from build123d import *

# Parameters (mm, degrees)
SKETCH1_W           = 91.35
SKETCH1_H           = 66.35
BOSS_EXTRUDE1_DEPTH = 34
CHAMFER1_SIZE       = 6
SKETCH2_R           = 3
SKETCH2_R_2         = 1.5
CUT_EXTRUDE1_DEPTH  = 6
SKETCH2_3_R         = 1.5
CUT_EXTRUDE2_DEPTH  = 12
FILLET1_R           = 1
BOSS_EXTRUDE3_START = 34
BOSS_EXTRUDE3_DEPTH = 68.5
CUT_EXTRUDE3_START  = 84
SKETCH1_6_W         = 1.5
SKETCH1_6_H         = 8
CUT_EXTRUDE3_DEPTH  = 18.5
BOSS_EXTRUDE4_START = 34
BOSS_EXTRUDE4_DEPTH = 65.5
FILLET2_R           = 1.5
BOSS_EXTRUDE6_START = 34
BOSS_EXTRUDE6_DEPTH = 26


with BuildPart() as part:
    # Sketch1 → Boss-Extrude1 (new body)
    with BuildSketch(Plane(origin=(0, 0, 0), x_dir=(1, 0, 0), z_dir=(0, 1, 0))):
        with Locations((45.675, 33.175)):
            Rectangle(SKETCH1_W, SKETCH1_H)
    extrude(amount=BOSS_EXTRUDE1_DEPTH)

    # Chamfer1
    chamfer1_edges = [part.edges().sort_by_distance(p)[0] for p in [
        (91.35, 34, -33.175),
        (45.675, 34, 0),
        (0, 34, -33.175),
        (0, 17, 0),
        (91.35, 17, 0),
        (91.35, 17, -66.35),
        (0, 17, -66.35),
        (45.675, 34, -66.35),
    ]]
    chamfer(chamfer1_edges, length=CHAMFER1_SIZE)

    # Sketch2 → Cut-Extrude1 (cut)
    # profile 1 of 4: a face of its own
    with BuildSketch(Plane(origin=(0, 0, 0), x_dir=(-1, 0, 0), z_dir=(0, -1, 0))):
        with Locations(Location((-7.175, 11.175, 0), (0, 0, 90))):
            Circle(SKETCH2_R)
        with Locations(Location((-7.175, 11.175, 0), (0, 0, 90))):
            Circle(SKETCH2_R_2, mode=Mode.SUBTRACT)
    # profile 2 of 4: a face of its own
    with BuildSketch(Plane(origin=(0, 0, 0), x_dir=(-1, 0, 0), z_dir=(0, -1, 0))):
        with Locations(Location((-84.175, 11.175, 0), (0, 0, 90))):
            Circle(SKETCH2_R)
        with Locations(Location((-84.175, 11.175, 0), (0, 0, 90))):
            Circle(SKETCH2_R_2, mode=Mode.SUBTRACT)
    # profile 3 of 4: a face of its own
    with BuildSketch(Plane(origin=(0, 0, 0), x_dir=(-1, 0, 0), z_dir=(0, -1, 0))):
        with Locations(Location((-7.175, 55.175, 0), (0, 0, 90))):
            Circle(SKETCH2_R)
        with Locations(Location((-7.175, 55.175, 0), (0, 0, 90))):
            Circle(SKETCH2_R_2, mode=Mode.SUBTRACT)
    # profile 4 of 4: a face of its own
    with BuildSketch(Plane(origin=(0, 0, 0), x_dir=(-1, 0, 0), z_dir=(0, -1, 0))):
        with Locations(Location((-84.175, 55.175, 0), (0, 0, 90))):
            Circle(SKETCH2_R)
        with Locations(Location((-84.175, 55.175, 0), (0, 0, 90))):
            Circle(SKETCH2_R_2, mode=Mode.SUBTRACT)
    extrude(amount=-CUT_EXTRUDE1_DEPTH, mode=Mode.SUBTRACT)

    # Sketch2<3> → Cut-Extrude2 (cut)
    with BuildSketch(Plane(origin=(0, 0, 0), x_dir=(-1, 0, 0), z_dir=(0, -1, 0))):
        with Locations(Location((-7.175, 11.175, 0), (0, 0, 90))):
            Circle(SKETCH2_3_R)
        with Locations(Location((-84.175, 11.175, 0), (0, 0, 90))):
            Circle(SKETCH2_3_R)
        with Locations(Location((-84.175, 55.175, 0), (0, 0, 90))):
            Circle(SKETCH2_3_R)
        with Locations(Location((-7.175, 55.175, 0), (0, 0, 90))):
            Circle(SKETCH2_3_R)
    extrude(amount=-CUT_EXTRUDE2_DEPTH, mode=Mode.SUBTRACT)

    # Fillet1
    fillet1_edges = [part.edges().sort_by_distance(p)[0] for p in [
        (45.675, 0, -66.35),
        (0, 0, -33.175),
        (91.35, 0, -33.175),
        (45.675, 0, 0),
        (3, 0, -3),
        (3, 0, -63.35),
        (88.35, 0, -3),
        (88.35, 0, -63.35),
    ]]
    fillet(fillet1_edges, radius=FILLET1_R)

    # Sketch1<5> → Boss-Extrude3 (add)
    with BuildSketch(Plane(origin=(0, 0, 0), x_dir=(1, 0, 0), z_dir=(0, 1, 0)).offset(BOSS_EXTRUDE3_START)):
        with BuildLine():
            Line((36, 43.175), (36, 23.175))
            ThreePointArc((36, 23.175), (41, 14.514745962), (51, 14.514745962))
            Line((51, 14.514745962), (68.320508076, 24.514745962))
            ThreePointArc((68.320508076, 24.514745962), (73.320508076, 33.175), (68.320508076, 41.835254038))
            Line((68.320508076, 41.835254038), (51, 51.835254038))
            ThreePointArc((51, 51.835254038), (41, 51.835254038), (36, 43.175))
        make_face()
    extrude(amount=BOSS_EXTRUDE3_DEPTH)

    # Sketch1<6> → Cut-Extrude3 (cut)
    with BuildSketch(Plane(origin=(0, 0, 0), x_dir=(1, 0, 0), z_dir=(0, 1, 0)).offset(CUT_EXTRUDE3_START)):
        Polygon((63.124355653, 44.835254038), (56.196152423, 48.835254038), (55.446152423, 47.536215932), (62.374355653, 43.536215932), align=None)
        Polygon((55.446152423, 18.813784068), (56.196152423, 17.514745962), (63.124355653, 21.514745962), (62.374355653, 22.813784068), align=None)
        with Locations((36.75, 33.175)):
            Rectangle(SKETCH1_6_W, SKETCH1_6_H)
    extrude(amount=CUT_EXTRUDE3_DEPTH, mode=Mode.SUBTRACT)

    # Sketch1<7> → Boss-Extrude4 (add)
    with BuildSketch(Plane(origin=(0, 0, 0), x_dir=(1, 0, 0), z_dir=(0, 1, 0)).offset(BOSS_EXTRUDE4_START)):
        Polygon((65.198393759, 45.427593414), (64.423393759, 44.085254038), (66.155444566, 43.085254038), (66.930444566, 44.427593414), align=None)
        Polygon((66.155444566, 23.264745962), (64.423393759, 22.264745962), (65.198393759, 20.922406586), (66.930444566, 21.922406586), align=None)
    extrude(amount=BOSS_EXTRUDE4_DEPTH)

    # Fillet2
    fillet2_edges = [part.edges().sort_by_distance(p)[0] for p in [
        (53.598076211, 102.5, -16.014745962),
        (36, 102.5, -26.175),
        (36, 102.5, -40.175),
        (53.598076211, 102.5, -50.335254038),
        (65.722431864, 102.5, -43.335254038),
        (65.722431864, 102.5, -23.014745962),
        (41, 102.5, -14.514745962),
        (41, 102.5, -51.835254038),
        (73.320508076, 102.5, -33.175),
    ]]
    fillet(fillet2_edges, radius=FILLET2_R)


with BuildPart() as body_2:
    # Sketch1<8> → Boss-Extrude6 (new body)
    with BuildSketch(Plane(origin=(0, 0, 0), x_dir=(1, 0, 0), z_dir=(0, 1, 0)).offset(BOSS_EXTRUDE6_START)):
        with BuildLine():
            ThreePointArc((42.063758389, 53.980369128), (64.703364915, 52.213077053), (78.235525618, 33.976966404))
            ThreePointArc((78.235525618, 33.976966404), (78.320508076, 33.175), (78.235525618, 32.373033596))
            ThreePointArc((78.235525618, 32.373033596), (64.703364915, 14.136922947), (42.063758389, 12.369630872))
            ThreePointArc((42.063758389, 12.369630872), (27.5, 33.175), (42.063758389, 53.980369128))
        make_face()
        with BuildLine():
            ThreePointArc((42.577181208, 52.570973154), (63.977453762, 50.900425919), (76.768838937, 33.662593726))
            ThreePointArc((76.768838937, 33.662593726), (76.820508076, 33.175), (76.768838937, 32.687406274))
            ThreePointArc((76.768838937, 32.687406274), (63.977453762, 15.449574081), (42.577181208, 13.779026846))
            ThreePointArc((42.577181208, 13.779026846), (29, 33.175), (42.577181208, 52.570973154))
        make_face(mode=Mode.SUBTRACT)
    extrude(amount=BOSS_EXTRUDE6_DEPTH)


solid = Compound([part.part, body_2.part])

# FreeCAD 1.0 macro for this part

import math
import FreeCAD as App
import Part
import Sketcher
Q = App.Units.Quantity


def edges_at(feature, points):
    """Names of the edges that pass closest to the given points."""
    edges = feature.Shape.Edges
    near = lambda p: min(range(len(edges)), key=lambda i: edges[i].distToShape(Part.Vertex(*p))[0])
    return sorted({f"Edge{near(p) + 1}" for p in points})

doc = App.newDocument("Part")
body = doc.addObject("PartDesign::Body", "Body")

# Sketch on XZ plane
sketch1 = body.newObject("Sketcher::SketchObject", "Sketch")
sketch1.AttachmentSupport = (doc.getObject("XZ_Plane"), [""])
sketch1.MapMode = "FlatFace"
sketch1.addGeometry([
    Part.LineSegment(App.Vector(0, -66, 0), App.Vector(0, 0, 0)),
    Part.LineSegment(App.Vector(0, 0, 0), App.Vector(91, 0, 0)),
    Part.LineSegment(App.Vector(91, 0, 0), App.Vector(91, -66, 0)),
    Part.LineSegment(App.Vector(91, -66, 0), App.Vector(0, -66, 0)),
], False)
sketch1.addConstraint([
    Sketcher.Constraint("Coincident", 0, 2, 1, 1),
    Sketcher.Constraint("Coincident", 1, 2, 2, 1),
    Sketcher.Constraint("Coincident", 2, 2, 3, 1),
    Sketcher.Constraint("Coincident", 3, 2, 0, 1),
    Sketcher.Constraint("Vertical", 0),
    Sketcher.Constraint("Horizontal", 1),
    Sketcher.Constraint("Vertical", 2),
    Sketcher.Constraint("Horizontal", 3),
    Sketcher.Constraint("Coincident", 0, 2, -1, 1),
    Sketcher.Constraint("DistanceX", 1, 1, 1, 2, 91.35),
    Sketcher.Constraint("DistanceY", 0, 1, 0, 2, 66.35),
])
pad1 = body.newObject("PartDesign::Pad", "Pad")
pad1.Profile = sketch1
pad1.Length = 34
pad1.Reversed = True
doc.recompute()

chamfer = body.newObject("PartDesign::Chamfer", "Chamfer")
chamfer.Base = (pad1, edges_at(pad1, [
    (91.35, 34, -33.175),
    (45.675, 34, 0),
    (0, 34, -33.175),
    (0, 17, 0),
    (91.35, 17, 0),
    (91.35, 17, -66.35),
    (0, 17, -66.35),
    (45.675, 34, -66.35),
]))
chamfer.Size = 6

# Sketch on XZ plane
sketch2 = body.newObject("Sketcher::SketchObject", "Sketch001")
sketch2.AttachmentSupport = (doc.getObject("XZ_Plane"), [""])
sketch2.MapMode = "FlatFace"
sketch2.addGeometry([
    Part.Circle(App.Vector(7.2, -11.2, 0), App.Vector(0, 0, 1), 3),  # 0
    Part.Circle(App.Vector(7.2, -11.2, 0), App.Vector(0, 0, 1), 1.5),  # 1
    Part.Circle(App.Vector(84.2, -11.2, 0), App.Vector(0, 0, 1), 3),  # 2
    Part.Circle(App.Vector(84.2, -11.2, 0), App.Vector(0, 0, 1), 1.5),  # 3
    Part.Circle(App.Vector(7.2, -55.2, 0), App.Vector(0, 0, 1), 3),  # 4
    Part.Circle(App.Vector(7.2, -55.2, 0), App.Vector(0, 0, 1), 1.5),  # 5
    Part.Circle(App.Vector(84.2, -55.2, 0), App.Vector(0, 0, 1), 3),  # 6
    Part.Circle(App.Vector(84.2, -55.2, 0), App.Vector(0, 0, 1), 1.5),  # 7
], False)
sketch2.addConstraint([
    Sketcher.Constraint("Coincident", 1, 3, 0, 3),
    Sketcher.Constraint("Coincident", 3, 3, 2, 3),
    Sketcher.Constraint("Coincident", 5, 3, 4, 3),
    Sketcher.Constraint("Coincident", 7, 3, 6, 3),
    Sketcher.Constraint("Equal", 0, 2),
    Sketcher.Constraint("Equal", 1, 3),
    Sketcher.Constraint("Equal", 2, 4),
    Sketcher.Constraint("Equal", 3, 5),
    Sketcher.Constraint("Equal", 4, 6),
    Sketcher.Constraint("Equal", 5, 7),
    Sketcher.Constraint("Horizontal", 1, 3, 2, 3),
    Sketcher.Constraint("Horizontal", 5, 3, 6, 3),
    Sketcher.Constraint("Vertical", 1, 3, 4, 3),
    Sketcher.Constraint("Vertical", 3, 3, 6, 3),
    Sketcher.Constraint("Diameter", 0, 6.0),
    Sketcher.Constraint("Diameter", 1, 3.0),
    Sketcher.Constraint("DistanceX", 0, 3, 2, 3, 77.0),
    Sketcher.Constraint("DistanceY", 4, 3, 0, 3, 44.0),
    Sketcher.Constraint("DistanceX", -1, 1, 0, 3, 7.175),
    Sketcher.Constraint("DistanceY", 0, 3, -1, 1, 11.175),
])
pocket1 = body.newObject("PartDesign::Pocket", "Pocket")
pocket1.Profile = sketch2
pocket1.Length = 6

# Sketch on XZ plane
sketch3 = body.newObject("Sketcher::SketchObject", "Sketch002")
sketch3.AttachmentSupport = (doc.getObject("XZ_Plane"), [""])
sketch3.MapMode = "FlatFace"
sketch3.addGeometry([
    Part.Circle(App.Vector(7.2, -11.2, 0), App.Vector(0, 0, 1), 1.5),
    Part.Circle(App.Vector(84.2, -11.2, 0), App.Vector(0, 0, 1), 1.5),
    Part.Circle(App.Vector(84.2, -55.2, 0), App.Vector(0, 0, 1), 1.5),
    Part.Circle(App.Vector(7.2, -55.2, 0), App.Vector(0, 0, 1), 1.5),
], False)
sketch3.addConstraint([
    Sketcher.Constraint("Equal", 0, 1),
    Sketcher.Constraint("Equal", 1, 2),
    Sketcher.Constraint("Equal", 2, 3),
    Sketcher.Constraint("Horizontal", 0, 3, 1, 3),
    Sketcher.Constraint("Horizontal", 2, 3, 3, 3),
    Sketcher.Constraint("Vertical", 1, 3, 2, 3),
    Sketcher.Constraint("Vertical", 0, 3, 3, 3),
    Sketcher.Constraint("Diameter", 0, 3.0),
    Sketcher.Constraint("DistanceX", 0, 3, 1, 3, 77.0),
    Sketcher.Constraint("DistanceY", 2, 3, 1, 3, 44.0),
    Sketcher.Constraint("DistanceX", -1, 1, 0, 3, 7.175),
    Sketcher.Constraint("DistanceY", 0, 3, -1, 1, 11.175),
])
pocket2 = body.newObject("PartDesign::Pocket", "Pocket001")
pocket2.Profile = sketch3
pocket2.Length = 12
doc.recompute()

fillet = body.newObject("PartDesign::Fillet", "Fillet")
fillet.Base = (pocket2, edges_at(pocket2, [
    (45.675, 0, -66.35),
    (0, 0, -33.175),
    (91.35, 0, -33.175),
    (45.675, 0, 0),
    (3, 0, -3),
    (3, 0, -63.35),
    (88.35, 0, -3),
    (88.35, 0, -63.35),
]))
fillet.Radius = 1

# Sketch on XZ plane
sketch4 = body.newObject("Sketcher::SketchObject", "Sketch003")
sketch4.AttachmentSupport = (doc.getObject("XZ_Plane"), [""])
sketch4.MapMode = "FlatFace"
sketch4.AttachmentOffset = App.Placement(App.Vector(0, 0, -34), App.Rotation())
sketch4.addGeometry([
    Part.LineSegment(App.Vector(36, -43, 0), App.Vector(36, -23, 0)),  # 0
    Part.ArcOfCircle(Part.Circle(App.Vector(46, -23, 0), App.Vector(0, 0, 1), 10), math.radians(60), math.radians(180)),  # 1
    Part.LineSegment(App.Vector(51, -15, 0), App.Vector(68, -25, 0)),  # 2
    Part.ArcOfCircle(Part.Circle(App.Vector(63, -33, 0), App.Vector(0, 0, 1), 10), math.radians(-60), math.radians(60)),  # 3
    Part.LineSegment(App.Vector(68, -42, 0), App.Vector(51, -52, 0)),  # 4
    Part.ArcOfCircle(Part.Circle(App.Vector(46, -43, 0), App.Vector(0, 0, 1), 10), math.radians(180), math.radians(300)),  # 5
], False)
sketch4.addConstraint([
    Sketcher.Constraint("Tangent", 0, 2, 1, 2),
    Sketcher.Constraint("Tangent", 1, 1, 2, 1),
    Sketcher.Constraint("Tangent", 2, 2, 3, 2),
    Sketcher.Constraint("Tangent", 3, 1, 4, 1),
    Sketcher.Constraint("Tangent", 4, 2, 5, 2),
    Sketcher.Constraint("Tangent", 5, 1, 0, 1),
    Sketcher.Constraint("Vertical", 0),
    Sketcher.Constraint("Equal", 1, 3),
    Sketcher.Constraint("Equal", 3, 5),
    Sketcher.Constraint("Vertical", 2, 2, 3, 1),
    Sketcher.Constraint("Radius", 1, 10.0),
    Sketcher.Constraint("DistanceY", 0, 1, 0, 2, 20.0),
    Sketcher.Constraint("Angle", 2, Q("-30 deg")),
    Sketcher.Constraint("DistanceX", -1, 1, 1, 3, 46.0),
    Sketcher.Constraint("DistanceY", 1, 3, -1, 1, 23.175),
])
pad2 = body.newObject("PartDesign::Pad", "Pad001")
pad2.Profile = sketch4
pad2.Length = 68.5
pad2.Reversed = True

# Sketch on XZ plane
sketch5 = body.newObject("Sketcher::SketchObject", "Sketch004")
sketch5.AttachmentSupport = (doc.getObject("XZ_Plane"), [""])
sketch5.MapMode = "FlatFace"
sketch5.AttachmentOffset = App.Placement(App.Vector(0, 0, -84), App.Rotation())
sketch5.addGeometry([
    Part.LineSegment(App.Vector(63.1, -44.8, 0), App.Vector(56.2, -48.8, 0)),  # 0
    Part.LineSegment(App.Vector(56.2, -48.8, 0), App.Vector(55.4, -47.5, 0)),  # 1
    Part.LineSegment(App.Vector(55.4, -47.5, 0), App.Vector(62.4, -43.5, 0)),  # 2
    Part.LineSegment(App.Vector(62.4, -43.5, 0), App.Vector(63.1, -44.8, 0)),  # 3
    Part.LineSegment(App.Vector(55.4, -18.8, 0), App.Vector(56.2, -17.5, 0)),  # 4
    Part.LineSegment(App.Vector(56.2, -17.5, 0), App.Vector(63.1, -21.5, 0)),  # 5
    Part.LineSegment(App.Vector(63.1, -21.5, 0), App.Vector(62.4, -22.8, 0)),  # 6
    Part.LineSegment(App.Vector(62.4, -22.8, 0), App.Vector(55.4, -18.8, 0)),  # 7
    Part.LineSegment(App.Vector(36, -37.2, 0), App.Vector(36, -29.2, 0)),  # 8
    Part.LineSegment(App.Vector(36, -29.2, 0), App.Vector(37.5, -29.2, 0)),  # 9
    Part.LineSegment(App.Vector(37.5, -29.2, 0), App.Vector(37.5, -37.2, 0)),  # 10
    Part.LineSegment(App.Vector(37.5, -37.2, 0), App.Vector(36, -37.2, 0)),  # 11
], False)
sketch5.addConstraint([
    Sketcher.Constraint("Coincident", 0, 2, 1, 1),
    Sketcher.Constraint("Coincident", 1, 2, 2, 1),
    Sketcher.Constraint("Coincident", 2, 2, 3, 1),
    Sketcher.Constraint("Coincident", 3, 2, 0, 1),
    Sketcher.Constraint("Coincident", 4, 2, 5, 1),
    Sketcher.Constraint("Coincident", 5, 2, 6, 1),
    Sketcher.Constraint("Coincident", 6, 2, 7, 1),
    Sketcher.Constraint("Coincident", 7, 2, 4, 1),
    Sketcher.Constraint("Coincident", 8, 2, 9, 1),
    Sketcher.Constraint("Coincident", 9, 2, 10, 1),
    Sketcher.Constraint("Coincident", 10, 2, 11, 1),
    Sketcher.Constraint("Coincident", 11, 2, 8, 1),
    Sketcher.Constraint("Vertical", 8),
    Sketcher.Constraint("Horizontal", 9),
    Sketcher.Constraint("Vertical", 10),
    Sketcher.Constraint("Horizontal", 11),
    Sketcher.Constraint("Perpendicular", 0, 1),
    Sketcher.Constraint("Perpendicular", 1, 2),
    Sketcher.Constraint("Perpendicular", 2, 3),
    Sketcher.Constraint("Perpendicular", 4, 5),
    Sketcher.Constraint("Perpendicular", 5, 6),
    Sketcher.Constraint("Perpendicular", 6, 7),
    Sketcher.Constraint("Vertical", 0, 2, 4, 2),
    Sketcher.Constraint("Vertical", 3, 2, 5, 2),
    Sketcher.Constraint("Vertical", 2, 2, 6, 2),
    Sketcher.Constraint("Equal", 3, 4),
    Sketcher.Constraint("DistanceY", 8, 1, 8, 2, 8.0),
    Sketcher.Constraint("Angle", 0, Q("-150 deg")),
    Sketcher.Constraint("Distance", 0, 8.0),
    Sketcher.Constraint("DistanceX", 9, 1, 9, 2, 1.5),
    Sketcher.Constraint("DistanceX", -1, 1, 8, 2, 36.0),
    Sketcher.Constraint("Distance", 1, 1.5),
    Sketcher.Constraint("DistanceY", 8, 2, -1, 1, 29.175),
    Sketcher.Constraint("DistanceY", 2, 2, 4, 2, 26.02147),
    Sketcher.Constraint("DistanceX", -1, 1, 0, 2, 56.196152),
    Sketcher.Constraint("DistanceY", 0, 2, -1, 1, 48.835254),
])
pocket3 = body.newObject("PartDesign::Pocket", "Pocket002")
pocket3.Profile = sketch5
pocket3.Length = 18.5

# Sketch on XZ plane
sketch6 = body.newObject("Sketcher::SketchObject", "Sketch005")
sketch6.AttachmentSupport = (doc.getObject("XZ_Plane"), [""])
sketch6.MapMode = "FlatFace"
sketch6.AttachmentOffset = App.Placement(App.Vector(0, 0, -34), App.Rotation())
sketch6.addGeometry([
    Part.LineSegment(App.Vector(65.2, -45.4, 0), App.Vector(64.4, -44.1, 0)),  # 0
    Part.LineSegment(App.Vector(64.4, -44.1, 0), App.Vector(66.2, -43.1, 0)),  # 1
    Part.LineSegment(App.Vector(66.2, -43.1, 0), App.Vector(66.9, -44.4, 0)),  # 2
    Part.LineSegment(App.Vector(66.9, -44.4, 0), App.Vector(65.2, -45.4, 0)),  # 3
    Part.LineSegment(App.Vector(66.2, -23.3, 0), App.Vector(64.4, -22.3, 0)),  # 4
    Part.LineSegment(App.Vector(64.4, -22.3, 0), App.Vector(65.2, -20.9, 0)),  # 5
    Part.LineSegment(App.Vector(65.2, -20.9, 0), App.Vector(66.9, -21.9, 0)),  # 6
    Part.LineSegment(App.Vector(66.9, -21.9, 0), App.Vector(66.2, -23.3, 0)),  # 7
], False)
sketch6.addConstraint([
    Sketcher.Constraint("Coincident", 0, 2, 1, 1),
    Sketcher.Constraint("Coincident", 1, 2, 2, 1),
    Sketcher.Constraint("Coincident", 2, 2, 3, 1),
    Sketcher.Constraint("Coincident", 3, 2, 0, 1),
    Sketcher.Constraint("Coincident", 4, 2, 5, 1),
    Sketcher.Constraint("Coincident", 5, 2, 6, 1),
    Sketcher.Constraint("Coincident", 6, 2, 7, 1),
    Sketcher.Constraint("Coincident", 7, 2, 4, 1),
    Sketcher.Constraint("Perpendicular", 0, 1),
    Sketcher.Constraint("Perpendicular", 1, 2),
    Sketcher.Constraint("Perpendicular", 2, 3),
    Sketcher.Constraint("Perpendicular", 4, 5),
    Sketcher.Constraint("Perpendicular", 5, 6),
    Sketcher.Constraint("Perpendicular", 6, 7),
    Sketcher.Constraint("Vertical", 0, 2, 4, 2),
    Sketcher.Constraint("Vertical", 3, 2, 5, 2),
    Sketcher.Constraint("Vertical", 2, 2, 6, 2),
    Sketcher.Constraint("Equal", 3, 4),
    Sketcher.Constraint("Angle", 0, Q("120 deg")),
    Sketcher.Constraint("Distance", 1, 2.0),
    Sketcher.Constraint("Distance", 0, 1.55),
    Sketcher.Constraint("DistanceY", 1, 2, 4, 2, 20.820508),
    Sketcher.Constraint("DistanceX", -1, 1, 0, 2, 64.423394),
    Sketcher.Constraint("DistanceY", 0, 2, -1, 1, 44.085254),
])
pad3 = body.newObject("PartDesign::Pad", "Pad002")
pad3.Profile = sketch6
pad3.Length = 65.5
pad3.Reversed = True
doc.recompute()

fillet2 = body.newObject("PartDesign::Fillet", "Fillet001")
fillet2.Base = (pad3, edges_at(pad3, [
    (53.598, 102.5, -16.015),
    (36, 102.5, -26.175),
    (36, 102.5, -40.175),
    (53.598, 102.5, -50.335),
    (65.722, 102.5, -43.335),
    (65.722, 102.5, -23.015),
    (41, 102.5, -14.515),
    (41, 102.5, -51.835),
    (73.321, 102.5, -33.175),
]))
fillet2.Radius = 1.5
body2 = doc.addObject("PartDesign::Body", "Body001")

# Sketch on XZ plane
sketch7 = body2.newObject("Sketcher::SketchObject", "Sketch006")
sketch7.AttachmentSupport = (doc.getObject("XZ_Plane001"), [""])
sketch7.MapMode = "FlatFace"
sketch7.AttachmentOffset = App.Placement(App.Vector(0, 0, -34), App.Rotation())
sketch7.addGeometry([
    Part.ArcOfCircle(Part.Circle(App.Vector(51.4, -28.2, 0), App.Vector(0, 0, 1), 27.4), math.radians(-110), math.radians(-12)),  # 0
    Part.ArcOfCircle(Part.Circle(App.Vector(49.6, -33.2, 0), App.Vector(0, 0, 1), 22.1), math.radians(110), math.radians(250)),  # 1
    Part.ArcOfCircle(Part.Circle(App.Vector(51.4, -38.1, 0), App.Vector(0, 0, 1), 27.4), math.radians(12), math.radians(110)),  # 2
    Part.ArcOfCircle(Part.Circle(App.Vector(74.5, -33.2, 0), App.Vector(0, 0, 1), 3.8), math.radians(-12), math.radians(12)),  # 3
    Part.ArcOfCircle(Part.Circle(App.Vector(51.4, -28.2, 0), App.Vector(0, 0, 1), 25.9), math.radians(-110), math.radians(-12)),  # 4
    Part.ArcOfCircle(Part.Circle(App.Vector(74.5, -33.2, 0), App.Vector(0, 0, 1), 2.3), math.radians(-12), math.radians(12)),  # 5
    Part.ArcOfCircle(Part.Circle(App.Vector(51.4, -38.1, 0), App.Vector(0, 0, 1), 25.9), math.radians(12), math.radians(110)),  # 6
    Part.ArcOfCircle(Part.Circle(App.Vector(49.6, -33.2, 0), App.Vector(0, 0, 1), 20.6), math.radians(110), math.radians(250)),  # 7
], False)
sketch7.addConstraint([
    Sketcher.Constraint("Tangent", 0, 1, 1, 2),
    Sketcher.Constraint("Tangent", 1, 1, 2, 2),
    Sketcher.Constraint("Tangent", 2, 1, 3, 2),
    Sketcher.Constraint("Tangent", 3, 1, 0, 2),
    Sketcher.Constraint("Tangent", 4, 2, 5, 1),
    Sketcher.Constraint("Tangent", 5, 2, 6, 1),
    Sketcher.Constraint("Tangent", 6, 2, 7, 1),
    Sketcher.Constraint("Tangent", 7, 2, 4, 1),
    Sketcher.Constraint("Coincident", 4, 3, 0, 3),
    Sketcher.Constraint("Coincident", 5, 3, 3, 3),
    Sketcher.Constraint("Coincident", 6, 3, 2, 3),
    Sketcher.Constraint("Equal", 0, 2),
    Sketcher.Constraint("Horizontal", 1, 3, 3, 3),
    Sketcher.Constraint("Radius", 0, 27.401339),
    Sketcher.Constraint("Radius", 3, 3.826508),
    Sketcher.Constraint("Radius", 4, 25.901339),
    Sketcher.Constraint("DistanceY", 1, 3, -1, 1, 33.175),
    Sketcher.Constraint("DistanceX", -1, 1, 3, 3, 74.494),
    Sketcher.Constraint("Radius", 1, 22.142857),
    Sketcher.Constraint("Radius", 7, 20.642857),
    Sketcher.Constraint("DistanceX", 0, 1, 7, 3, 7.579099),
])
pad4 = body2.newObject("PartDesign::Pad", "Pad003")
pad4.Profile = sketch7
pad4.Length = 26
pad4.Reversed = True

doc.recompute()
